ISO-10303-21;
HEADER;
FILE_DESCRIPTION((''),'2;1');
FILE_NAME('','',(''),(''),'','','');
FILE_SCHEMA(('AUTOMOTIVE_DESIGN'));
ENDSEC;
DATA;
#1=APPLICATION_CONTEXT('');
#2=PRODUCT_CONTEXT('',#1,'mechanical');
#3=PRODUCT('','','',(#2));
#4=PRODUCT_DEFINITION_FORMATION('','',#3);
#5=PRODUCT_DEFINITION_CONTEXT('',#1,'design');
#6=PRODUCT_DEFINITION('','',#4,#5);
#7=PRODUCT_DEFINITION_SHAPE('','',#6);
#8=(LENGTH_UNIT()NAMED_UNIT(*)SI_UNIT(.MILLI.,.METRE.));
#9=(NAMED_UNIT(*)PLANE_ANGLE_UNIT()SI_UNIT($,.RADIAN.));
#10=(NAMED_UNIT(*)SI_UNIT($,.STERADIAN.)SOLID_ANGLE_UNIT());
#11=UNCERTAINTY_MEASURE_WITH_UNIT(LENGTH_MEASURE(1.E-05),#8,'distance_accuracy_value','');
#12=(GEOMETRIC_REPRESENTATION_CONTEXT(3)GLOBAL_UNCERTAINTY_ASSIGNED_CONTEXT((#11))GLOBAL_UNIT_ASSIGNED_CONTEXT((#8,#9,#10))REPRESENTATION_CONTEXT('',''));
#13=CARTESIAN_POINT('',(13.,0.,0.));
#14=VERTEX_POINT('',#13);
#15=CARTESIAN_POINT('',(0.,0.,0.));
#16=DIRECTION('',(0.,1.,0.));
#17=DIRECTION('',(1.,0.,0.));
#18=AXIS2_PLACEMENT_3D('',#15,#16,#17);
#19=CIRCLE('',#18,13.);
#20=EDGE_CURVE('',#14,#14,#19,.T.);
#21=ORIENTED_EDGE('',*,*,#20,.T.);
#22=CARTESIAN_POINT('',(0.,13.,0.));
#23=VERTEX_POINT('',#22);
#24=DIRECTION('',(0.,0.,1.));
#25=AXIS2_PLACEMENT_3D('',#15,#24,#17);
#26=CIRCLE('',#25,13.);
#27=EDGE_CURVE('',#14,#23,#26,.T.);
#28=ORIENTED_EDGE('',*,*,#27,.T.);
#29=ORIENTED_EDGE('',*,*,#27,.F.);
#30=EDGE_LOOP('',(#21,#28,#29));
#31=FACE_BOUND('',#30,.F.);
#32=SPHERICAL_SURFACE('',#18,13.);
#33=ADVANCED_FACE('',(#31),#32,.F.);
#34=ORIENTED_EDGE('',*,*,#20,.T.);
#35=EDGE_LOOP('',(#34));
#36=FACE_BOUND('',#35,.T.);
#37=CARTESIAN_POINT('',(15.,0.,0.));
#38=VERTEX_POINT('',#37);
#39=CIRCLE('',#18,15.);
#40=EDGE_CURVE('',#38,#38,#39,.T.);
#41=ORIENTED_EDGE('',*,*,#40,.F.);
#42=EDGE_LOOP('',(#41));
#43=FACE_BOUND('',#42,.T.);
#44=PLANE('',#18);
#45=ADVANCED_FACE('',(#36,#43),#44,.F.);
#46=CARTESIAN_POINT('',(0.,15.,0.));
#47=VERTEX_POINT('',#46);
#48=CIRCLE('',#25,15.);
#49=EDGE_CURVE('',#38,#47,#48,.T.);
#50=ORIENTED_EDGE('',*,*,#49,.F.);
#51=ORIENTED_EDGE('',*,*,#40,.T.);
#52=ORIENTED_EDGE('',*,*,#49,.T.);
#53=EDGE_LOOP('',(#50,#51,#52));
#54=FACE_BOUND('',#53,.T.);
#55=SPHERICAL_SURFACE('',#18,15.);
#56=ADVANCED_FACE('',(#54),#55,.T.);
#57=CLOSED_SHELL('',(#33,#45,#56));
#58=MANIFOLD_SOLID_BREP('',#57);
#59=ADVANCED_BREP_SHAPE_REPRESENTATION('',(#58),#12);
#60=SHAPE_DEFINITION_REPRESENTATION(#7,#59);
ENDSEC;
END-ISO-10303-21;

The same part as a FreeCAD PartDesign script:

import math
import FreeCAD as App
import Part
import Sketcher
Q = App.Units.Quantity


def faces_at(feature, points):
    """Names of the faces that lie closest to the given points."""
    faces = feature.Shape.Faces
    near = lambda p: min(range(len(faces)), key=lambda i: faces[i].distToShape(Part.Vertex(*p))[0])
    return sorted({f"Face{near(p) + 1}" for p in points})

doc = App.newDocument("Part")
body = doc.addObject("PartDesign::Body", "Body")

# Sketch on XY plane
sketch1 = body.newObject("Sketcher::SketchObject", "Sketch")
sketch1.AttachmentSupport = (doc.getObject("XY_Plane"), [""])
sketch1.MapMode = "FlatFace"
sketch1.addGeometry([
    Part.LineSegment(App.Vector(0, 15, 0), App.Vector(0, 0, 0)),
    Part.LineSegment(App.Vector(0, 0, 0), App.Vector(15, 0, 0)),
    Part.ArcOfCircle(Part.Circle(App.Vector(0, 0, 0), App.Vector(0, 0, 1), 15), math.radians(0), math.radians(90)),
], False)
sketch1.addConstraint([
    Sketcher.Constraint("Coincident", 0, 2, 1, 1),
    Sketcher.Constraint("Coincident", 1, 2, 2, 1),
    Sketcher.Constraint("Coincident", 2, 2, 0, 1),
    Sketcher.Constraint("Vertical", 0),
    Sketcher.Constraint("Horizontal", 1),
    Sketcher.Constraint("Coincident", 2, 3, -1, 1),
    Sketcher.Constraint("Coincident", 0, 2, -1, 1),
    Sketcher.Constraint("Radius", 2, Q("15 mm")),
])
revolution = body.newObject("PartDesign::Revolution", "Revolution")
revolution.Profile = sketch1
revolution.ReferenceAxis = (sketch1, ["V_Axis"])
revolution.Angle = 360
doc.recompute()

thickness = body.newObject("PartDesign::Thickness", "Thickness")
thickness.Base = (revolution, faces_at(revolution, [(4.709, 0, 0)]))
thickness.Value = 2
thickness.Reversed = True
thickness.Join = "Intersection"

doc.recompute()
